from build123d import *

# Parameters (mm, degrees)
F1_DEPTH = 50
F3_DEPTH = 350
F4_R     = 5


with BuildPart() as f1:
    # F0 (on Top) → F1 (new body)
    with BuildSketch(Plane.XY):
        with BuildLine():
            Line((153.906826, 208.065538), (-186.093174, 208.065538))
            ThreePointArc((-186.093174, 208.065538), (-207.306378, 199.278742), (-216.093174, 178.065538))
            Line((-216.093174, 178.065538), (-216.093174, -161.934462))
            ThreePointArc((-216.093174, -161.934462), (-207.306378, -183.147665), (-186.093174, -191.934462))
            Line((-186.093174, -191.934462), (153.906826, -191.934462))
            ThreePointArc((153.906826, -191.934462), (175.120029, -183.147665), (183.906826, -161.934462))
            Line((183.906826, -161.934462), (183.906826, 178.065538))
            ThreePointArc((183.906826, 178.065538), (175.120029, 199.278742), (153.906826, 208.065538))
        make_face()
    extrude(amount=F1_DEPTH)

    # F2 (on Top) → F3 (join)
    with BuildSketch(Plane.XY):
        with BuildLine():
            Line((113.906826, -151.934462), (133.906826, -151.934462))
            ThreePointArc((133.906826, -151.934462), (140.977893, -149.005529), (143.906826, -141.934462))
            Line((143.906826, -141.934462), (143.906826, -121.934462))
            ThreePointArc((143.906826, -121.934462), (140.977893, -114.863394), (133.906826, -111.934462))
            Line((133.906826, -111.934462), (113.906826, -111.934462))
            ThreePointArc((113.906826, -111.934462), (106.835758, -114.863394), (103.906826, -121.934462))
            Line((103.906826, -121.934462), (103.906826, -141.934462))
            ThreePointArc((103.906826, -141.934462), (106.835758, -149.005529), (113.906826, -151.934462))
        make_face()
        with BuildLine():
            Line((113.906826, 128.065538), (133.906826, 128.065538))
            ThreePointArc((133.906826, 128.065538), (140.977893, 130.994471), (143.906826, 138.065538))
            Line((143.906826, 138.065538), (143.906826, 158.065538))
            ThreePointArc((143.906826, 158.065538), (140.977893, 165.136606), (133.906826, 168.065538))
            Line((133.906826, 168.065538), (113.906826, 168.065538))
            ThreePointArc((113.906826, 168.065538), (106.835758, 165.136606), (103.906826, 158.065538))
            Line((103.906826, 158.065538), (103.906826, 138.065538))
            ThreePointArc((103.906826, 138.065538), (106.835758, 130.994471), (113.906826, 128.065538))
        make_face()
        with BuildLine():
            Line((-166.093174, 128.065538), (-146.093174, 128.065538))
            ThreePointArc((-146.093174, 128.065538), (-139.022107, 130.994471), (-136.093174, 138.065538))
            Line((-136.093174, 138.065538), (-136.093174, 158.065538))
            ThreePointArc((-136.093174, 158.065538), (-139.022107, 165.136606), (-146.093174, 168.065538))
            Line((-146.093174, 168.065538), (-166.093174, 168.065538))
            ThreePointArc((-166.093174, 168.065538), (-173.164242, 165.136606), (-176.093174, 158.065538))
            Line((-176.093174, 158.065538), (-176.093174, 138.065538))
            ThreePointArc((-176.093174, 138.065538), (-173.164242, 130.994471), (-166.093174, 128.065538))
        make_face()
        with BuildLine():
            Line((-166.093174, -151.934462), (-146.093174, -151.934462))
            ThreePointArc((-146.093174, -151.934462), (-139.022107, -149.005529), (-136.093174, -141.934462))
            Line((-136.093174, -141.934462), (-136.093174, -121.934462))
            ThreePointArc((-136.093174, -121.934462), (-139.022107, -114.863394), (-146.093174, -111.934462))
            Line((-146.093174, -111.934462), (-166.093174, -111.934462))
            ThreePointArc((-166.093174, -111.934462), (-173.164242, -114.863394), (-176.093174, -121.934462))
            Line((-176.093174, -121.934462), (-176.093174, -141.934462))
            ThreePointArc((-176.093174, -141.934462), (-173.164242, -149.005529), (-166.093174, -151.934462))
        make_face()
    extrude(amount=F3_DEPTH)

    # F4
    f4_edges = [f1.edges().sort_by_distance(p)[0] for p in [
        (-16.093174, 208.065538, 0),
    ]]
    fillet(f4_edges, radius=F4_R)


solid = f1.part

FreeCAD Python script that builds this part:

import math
import FreeCAD as App
import Part
import Sketcher

V = App.Vector
Q = App.Units.Quantity


def edges_at(feature, points):
    """Names of the edges that pass closest to the given points."""
    edges = feature.Shape.Edges
    near = lambda p: min(range(len(edges)), key=lambda i: edges[i].distToShape(Part.Vertex(*p))[0])
    return sorted({f"Edge{near(p) + 1}" for p in points})

doc = App.newDocument("Part")
params = doc.addObject("Spreadsheet::Sheet", "Params")
for row, (alias, value) in enumerate([
    ("sketch1_radius", "29.999998 mm"),
    ("sketch1_width", "340 mm"),
    ("pad1_length", "50 mm"),
    ("sketch2_radius", "10.000001 mm"),
    ("sketch2_width", "20 mm"),
    ("pad2_length", "350 mm"),
    ("fillet_radius", "5 mm"),
], start=1):
    params.set(f"A{row}", alias)
    params.set(f"B{row}", "=" + value)
    params.setAlias(f"B{row}", alias)

body = doc.addObject("PartDesign::Body", "Body")

# Sketch on XY plane
sketch1 = body.newObject("Sketcher::SketchObject", "Sketch")
sketch1.AttachmentSupport = (doc.getObject("XY_Plane"), [""])
sketch1.MapMode = "FlatFace"
sketch1.addGeometry(Part.LineSegment(V(153.906826, 208.065538, 0), V(-186.093174, 208.065538, 0)), False)
sketch1.addGeometry(Part.ArcOfCircle(Part.Circle(V(-186.093176, 178.06554, 0), V(0, 0, 1), 29.999998), math.radians(89.999996), math.radians(180.000004)), False)
sketch1.addGeometry(Part.LineSegment(V(-216.093174, 178.065538, 0), V(-216.093174, -161.934462, 0)), False)
sketch1.addGeometry(Part.ArcOfCircle(Part.Circle(V(-186.093174, -161.934462, 0), V(0, 0, 1), 30), math.radians(180), math.radians(270)), False)
sketch1.addGeometry(Part.LineSegment(V(-186.093174, -191.934462, 0), V(153.906826, -191.934462, 0)), False)
sketch1.addGeometry(Part.ArcOfCircle(Part.Circle(V(153.906825, -161.934461, 0), V(0, 0, 1), 30.000001), math.radians(-89.999997), math.radians(-0.000003)), False)
sketch1.addGeometry(Part.LineSegment(V(183.906826, -161.934462, 0), V(183.906826, 178.065538, 0)), False)
sketch1.addGeometry(Part.ArcOfCircle(Part.Circle(V(153.906826, 178.065538, 0), V(0, 0, 1), 30), math.radians(0), math.radians(90)), False)
sketch1.addConstraint(Sketcher.Constraint("Tangent", 0, 2, 1, 1))
sketch1.addConstraint(Sketcher.Constraint("Tangent", 1, 2, 2, 1))
sketch1.addConstraint(Sketcher.Constraint("Tangent", 2, 2, 3, 1))
sketch1.addConstraint(Sketcher.Constraint("Tangent", 3, 2, 4, 1))
sketch1.addConstraint(Sketcher.Constraint("Tangent", 4, 2, 5, 1))
sketch1.addConstraint(Sketcher.Constraint("Tangent", 5, 2, 6, 1))
sketch1.addConstraint(Sketcher.Constraint("Tangent", 6, 2, 7, 1))
sketch1.addConstraint(Sketcher.Constraint("Tangent", 7, 2, 0, 1))
sketch1.addConstraint(Sketcher.Constraint("Horizontal", 0))
sketch1.addConstraint(Sketcher.Constraint("Vertical", 2))
sketch1.addConstraint(Sketcher.Constraint("Horizontal", 4))
sketch1.addConstraint(Sketcher.Constraint("Vertical", 6))
sketch1.addConstraint(Sketcher.Constraint("Equal", 1, 3))
sketch1.addConstraint(Sketcher.Constraint("Equal", 3, 5))
sketch1.addConstraint(Sketcher.Constraint("Equal", 5, 7))
sketch1.addConstraint(Sketcher.Constraint("Equal", 4, 2))
sketch1.addConstraint(Sketcher.Constraint("Radius", 1, Q("29.999998 mm")))
sketch1.addConstraint(Sketcher.Constraint("DistanceX", 0, 2, 0, 1, Q("340 mm")))
sketch1.addConstraint(Sketcher.Constraint("DistanceY", -1, 1, 1, 3, Q("178.06554 mm")))
sketch1.addConstraint(Sketcher.Constraint("DistanceX", 1, 3, -1, 1, Q("186.093176 mm")))
sketch1.setExpression("Constraints[16]", "Params.sketch1_radius")
sketch1.setExpression("Constraints[17]", "Params.sketch1_width")
pad1 = body.newObject("PartDesign::Pad", "Pad")
pad1.Profile = sketch1
pad1.setExpression("Length", "Params.pad1_length")

# Sketch on XY plane
sketch2 = body.newObject("Sketcher::SketchObject", "Sketch001")
sketch2.AttachmentSupport = (doc.getObject("XY_Plane"), [""])
sketch2.MapMode = "FlatFace"
sketch2.addGeometry(Part.LineSegment(V(113.906826, -151.934462, 0), V(133.906826, -151.934462, 0)), False)
sketch2.addGeometry(Part.ArcOfCircle(Part.Circle(V(133.906823, -141.934459, 0), V(0, 0, 1), 10.000003), math.radians(-89.999984), math.radians(-0.000016)), False)
sketch2.addGeometry(Part.LineSegment(V(143.906826, -141.934462, 0), V(143.906826, -121.934462, 0)), False)
sketch2.addGeometry(Part.ArcOfCircle(Part.Circle(V(133.906825, -121.934463, 0), V(0, 0, 1), 10.000001), math.radians(0.000006), math.radians(89.999994)), False)
sketch2.addGeometry(Part.LineSegment(V(133.906826, -111.934462, 0), V(113.906826, -111.934462, 0)), False)
sketch2.addGeometry(Part.ArcOfCircle(Part.Circle(V(113.906825, -121.934461, 0), V(0, 0, 1), 9.999999), math.radians(89.999996), math.radians(180.000004)), False)
sketch2.addGeometry(Part.LineSegment(V(103.906826, -121.934462, 0), V(103.906826, -141.934462, 0)), False)
sketch2.addGeometry(Part.ArcOfCircle(Part.Circle(V(113.906827, -141.934461, 0), V(0, 0, 1), 10.000001), math.radians(-179.999994), math.radians(-90.000006)), False)
sketch2.addGeometry(Part.LineSegment(V(113.906826, 128.065538, 0), V(133.906826, 128.065538, 0)), False)
sketch2.addGeometry(Part.ArcOfCircle(Part.Circle(V(133.906823, 138.065541, 0), V(0, 0, 1), 10.000003), math.radians(-89.999984), math.radians(-0.000016)), False)
sketch2.addGeometry(Part.LineSegment(V(143.906826, 138.065538, 0), V(143.906826, 158.065538, 0)), False)
sketch2.addGeometry(Part.ArcOfCircle(Part.Circle(V(133.906825, 158.065537, 0), V(0, 0, 1), 10.000001), math.radians(0.000006), math.radians(89.999994)), False)
sketch2.addGeometry(Part.LineSegment(V(133.906826, 168.065538, 0), V(113.906826, 168.065538, 0)), False)
sketch2.addGeometry(Part.ArcOfCircle(Part.Circle(V(113.906825, 158.065539, 0), V(0, 0, 1), 9.999999), math.radians(89.999996), math.radians(180.000004)), False)
sketch2.addGeometry(Part.LineSegment(V(103.906826, 158.065538, 0), V(103.906826, 138.065538, 0)), False)
sketch2.addGeometry(Part.ArcOfCircle(Part.Circle(V(113.906827, 138.065539, 0), V(0, 0, 1), 10.000001), math.radians(-179.999994), math.radians(-90.000006)), False)
sketch2.addGeometry(Part.LineSegment(V(-166.093174, 128.065538, 0), V(-146.093174, 128.065538, 0)), False)
sketch2.addGeometry(Part.ArcOfCircle(Part.Circle(V(-146.093177, 138.065541, 0), V(0, 0, 1), 10.000003), math.radians(-89.999984), math.radians(-0.000016)), False)
sketch2.addGeometry(Part.LineSegment(V(-136.093174, 138.065538, 0), V(-136.093174, 158.065538, 0)), False)
sketch2.addGeometry(Part.ArcOfCircle(Part.Circle(V(-146.093175, 158.065537, 0), V(0, 0, 1), 10.000001), math.radians(0.000006), math.radians(89.999994)), False)
sketch2.addGeometry(Part.LineSegment(V(-146.093174, 168.065538, 0), V(-166.093174, 168.065538, 0)), False)
sketch2.addGeometry(Part.ArcOfCircle(Part.Circle(V(-166.093175, 158.065539, 0), V(0, 0, 1), 9.999999), math.radians(89.999996), math.radians(180.000004)), False)
sketch2.addGeometry(Part.LineSegment(V(-176.093174, 158.065538, 0), V(-176.093174, 138.065538, 0)), False)
sketch2.addGeometry(Part.ArcOfCircle(Part.Circle(V(-166.093173, 138.065539, 0), V(0, 0, 1), 10.000001), math.radians(-179.999994), math.radians(-90.000006)), False)
sketch2.addGeometry(Part.LineSegment(V(-166.093174, -151.934462, 0), V(-146.093174, -151.934462, 0)), False)
sketch2.addGeometry(Part.ArcOfCircle(Part.Circle(V(-146.093177, -141.934459, 0), V(0, 0, 1), 10.000003), math.radians(-89.999984), math.radians(-0.000016)), False)
sketch2.addGeometry(Part.LineSegment(V(-136.093174, -141.934462, 0), V(-136.093174, -121.934462, 0)), False)
sketch2.addGeometry(Part.ArcOfCircle(Part.Circle(V(-146.093175, -121.934463, 0), V(0, 0, 1), 10.000001), math.radians(0.000006), math.radians(89.999994)), False)
sketch2.addGeometry(Part.LineSegment(V(-146.093174, -111.934462, 0), V(-166.093174, -111.934462, 0)), False)
sketch2.addGeometry(Part.ArcOfCircle(Part.Circle(V(-166.093175, -121.934461, 0), V(0, 0, 1), 9.999999), math.radians(89.999996), math.radians(180.000004)), False)
sketch2.addGeometry(Part.LineSegment(V(-176.093174, -121.934462, 0), V(-176.093174, -141.934462, 0)), False)
sketch2.addGeometry(Part.ArcOfCircle(Part.Circle(V(-166.093173, -141.934461, 0), V(0, 0, 1), 10.000001), math.radians(-179.999994), math.radians(-90.000006)), False)
sketch2.addConstraint(Sketcher.Constraint("Tangent", 0, 2, 1, 1))
sketch2.addConstraint(Sketcher.Constraint("Tangent", 1, 2, 2, 1))
sketch2.addConstraint(Sketcher.Constraint("Tangent", 2, 2, 3, 1))
sketch2.addConstraint(Sketcher.Constraint("Tangent", 3, 2, 4, 1))
sketch2.addConstraint(Sketcher.Constraint("Tangent", 4, 2, 5, 1))
sketch2.addConstraint(Sketcher.Constraint("Tangent", 5, 2, 6, 1))
sketch2.addConstraint(Sketcher.Constraint("Tangent", 6, 2, 7, 1))
sketch2.addConstraint(Sketcher.Constraint("Tangent", 7, 2, 0, 1))
sketch2.addConstraint(Sketcher.Constraint("Tangent", 8, 2, 9, 1))
sketch2.addConstraint(Sketcher.Constraint("Tangent", 9, 2, 10, 1))
sketch2.addConstraint(Sketcher.Constraint("Tangent", 10, 2, 11, 1))
sketch2.addConstraint(Sketcher.Constraint("Tangent", 11, 2, 12, 1))
sketch2.addConstraint(Sketcher.Constraint("Tangent", 12, 2, 13, 1))
sketch2.addConstraint(Sketcher.Constraint("Tangent", 13, 2, 14, 1))
sketch2.addConstraint(Sketcher.Constraint("Tangent", 14, 2, 15, 1))
sketch2.addConstraint(Sketcher.Constraint("Tangent", 15, 2, 8, 1))
sketch2.addConstraint(Sketcher.Constraint("Tangent", 16, 2, 17, 1))
sketch2.addConstraint(Sketcher.Constraint("Tangent", 17, 2, 18, 1))
sketch2.addConstraint(Sketcher.Constraint("Tangent", 18, 2, 19, 1))
sketch2.addConstraint(Sketcher.Constraint("Tangent", 19, 2, 20, 1))
sketch2.addConstraint(Sketcher.Constraint("Tangent", 20, 2, 21, 1))
sketch2.addConstraint(Sketcher.Constraint("Tangent", 21, 2, 22, 1))
sketch2.addConstraint(Sketcher.Constraint("Tangent", 22, 2, 23, 1))
sketch2.addConstraint(Sketcher.Constraint("Tangent", 23, 2, 16, 1))
sketch2.addConstraint(Sketcher.Constraint("Tangent", 24, 2, 25, 1))
sketch2.addConstraint(Sketcher.Constraint("Tangent", 25, 2, 26, 1))
sketch2.addConstraint(Sketcher.Constraint("Tangent", 26, 2, 27, 1))
sketch2.addConstraint(Sketcher.Constraint("Tangent", 27, 2, 28, 1))
sketch2.addConstraint(Sketcher.Constraint("Tangent", 28, 2, 29, 1))
sketch2.addConstraint(Sketcher.Constraint("Tangent", 29, 2, 30, 1))
sketch2.addConstraint(Sketcher.Constraint("Tangent", 30, 2, 31, 1))
sketch2.addConstraint(Sketcher.Constraint("Tangent", 31, 2, 24, 1))
sketch2.addConstraint(Sketcher.Constraint("Horizontal", 0))
sketch2.addConstraint(Sketcher.Constraint("Vertical", 2))
sketch2.addConstraint(Sketcher.Constraint("Horizontal", 4))
sketch2.addConstraint(Sketcher.Constraint("Vertical", 6))
sketch2.addConstraint(Sketcher.Constraint("Horizontal", 8))
sketch2.addConstraint(Sketcher.Constraint("Vertical", 10))
sketch2.addConstraint(Sketcher.Constraint("Horizontal", 12))
sketch2.addConstraint(Sketcher.Constraint("Vertical", 14))
sketch2.addConstraint(Sketcher.Constraint("Horizontal", 16))
sketch2.addConstraint(Sketcher.Constraint("Vertical", 18))
sketch2.addConstraint(Sketcher.Constraint("Horizontal", 20))
sketch2.addConstraint(Sketcher.Constraint("Vertical", 22))
sketch2.addConstraint(Sketcher.Constraint("Horizontal", 24))
sketch2.addConstraint(Sketcher.Constraint("Vertical", 26))
sketch2.addConstraint(Sketcher.Constraint("Horizontal", 28))
sketch2.addConstraint(Sketcher.Constraint("Vertical", 30))
sketch2.addConstraint(Sketcher.Constraint("Equal", 1, 3))
sketch2.addConstraint(Sketcher.Constraint("Equal", 3, 5))
sketch2.addConstraint(Sketcher.Constraint("Equal", 5, 7))
sketch2.addConstraint(Sketcher.Constraint("Equal", 7, 9))
sketch2.addConstraint(Sketcher.Constraint("Equal", 9, 11))
sketch2.addConstraint(Sketcher.Constraint("Equal", 11, 13))
sketch2.addConstraint(Sketcher.Constraint("Equal", 13, 15))
sketch2.addConstraint(Sketcher.Constraint("Equal", 15, 17))
sketch2.addConstraint(Sketcher.Constraint("Equal", 17, 19))
sketch2.addConstraint(Sketcher.Constraint("Equal", 19, 21))
sketch2.addConstraint(Sketcher.Constraint("Equal", 21, 23))
sketch2.addConstraint(Sketcher.Constraint("Equal", 23, 25))
sketch2.addConstraint(Sketcher.Constraint("Equal", 25, 27))
sketch2.addConstraint(Sketcher.Constraint("Equal", 27, 29))
sketch2.addConstraint(Sketcher.Constraint("Equal", 29, 31))
sketch2.addConstraint(Sketcher.Constraint("Horizontal", 15, 3, 17, 3))
sketch2.addConstraint(Sketcher.Constraint("Horizontal", 13, 3, 19, 3))
sketch2.addConstraint(Sketcher.Constraint("Horizontal", 7, 3, 25, 3))
sketch2.addConstraint(Sketcher.Constraint("Horizontal", 5, 3, 27, 3))
sketch2.addConstraint(Sketcher.Constraint("Vertical", 3, 3, 9, 3))
sketch2.addConstraint(Sketcher.Constraint("Vertical", 7, 3, 13, 3))
sketch2.addConstraint(Sketcher.Constraint("Vertical", 19, 3, 25, 3))
sketch2.addConstraint(Sketcher.Constraint("Vertical", 23, 3, 29, 3))
sketch2.addConstraint(Sketcher.Constraint("Equal", 12, 16))
sketch2.addConstraint(Sketcher.Constraint("Equal", 28, 2))
sketch2.addConstraint(Sketcher.Constraint("Equal", 6, 10))
sketch2.addConstraint(Sketcher.Constraint("Radius", 3, Q("10.000001 mm")))
sketch2.addConstraint(Sketcher.Constraint("DistanceX", 0, 1, 0, 2, Q("20 mm")))
sketch2.addConstraint(Sketcher.Constraint("DistanceY", 1, 3, 9, 3, Q("280 mm")))
sketch2.addConstraint(Sketcher.Constraint("DistanceX", 17, 3, 9, 3, Q("280 mm")))
sketch2.addConstraint(Sketcher.Constraint("DistanceY", 1, 3, -1, 1, Q("141.934459 mm")))
sketch2.addConstraint(Sketcher.Constraint("DistanceX", -1, 1, 1, 3, Q("133.906823 mm")))
sketch2.setExpression("Constraints[74]", "Params.sketch2_radius")
sketch2.setExpression("Constraints[75]", "Params.sketch2_width")
pad2 = body.newObject("PartDesign::Pad", "Pad001")
pad2.Profile = sketch2
pad2.setExpression("Length", "Params.pad2_length")
doc.recompute()

fillet = body.newObject("PartDesign::Fillet", "Fillet")
fillet.Base = (pad2, edges_at(pad2, [(-16.093, 208.066, 0)]))
fillet.setExpression("Radius", "Params.fillet_radius")

doc.recompute()
